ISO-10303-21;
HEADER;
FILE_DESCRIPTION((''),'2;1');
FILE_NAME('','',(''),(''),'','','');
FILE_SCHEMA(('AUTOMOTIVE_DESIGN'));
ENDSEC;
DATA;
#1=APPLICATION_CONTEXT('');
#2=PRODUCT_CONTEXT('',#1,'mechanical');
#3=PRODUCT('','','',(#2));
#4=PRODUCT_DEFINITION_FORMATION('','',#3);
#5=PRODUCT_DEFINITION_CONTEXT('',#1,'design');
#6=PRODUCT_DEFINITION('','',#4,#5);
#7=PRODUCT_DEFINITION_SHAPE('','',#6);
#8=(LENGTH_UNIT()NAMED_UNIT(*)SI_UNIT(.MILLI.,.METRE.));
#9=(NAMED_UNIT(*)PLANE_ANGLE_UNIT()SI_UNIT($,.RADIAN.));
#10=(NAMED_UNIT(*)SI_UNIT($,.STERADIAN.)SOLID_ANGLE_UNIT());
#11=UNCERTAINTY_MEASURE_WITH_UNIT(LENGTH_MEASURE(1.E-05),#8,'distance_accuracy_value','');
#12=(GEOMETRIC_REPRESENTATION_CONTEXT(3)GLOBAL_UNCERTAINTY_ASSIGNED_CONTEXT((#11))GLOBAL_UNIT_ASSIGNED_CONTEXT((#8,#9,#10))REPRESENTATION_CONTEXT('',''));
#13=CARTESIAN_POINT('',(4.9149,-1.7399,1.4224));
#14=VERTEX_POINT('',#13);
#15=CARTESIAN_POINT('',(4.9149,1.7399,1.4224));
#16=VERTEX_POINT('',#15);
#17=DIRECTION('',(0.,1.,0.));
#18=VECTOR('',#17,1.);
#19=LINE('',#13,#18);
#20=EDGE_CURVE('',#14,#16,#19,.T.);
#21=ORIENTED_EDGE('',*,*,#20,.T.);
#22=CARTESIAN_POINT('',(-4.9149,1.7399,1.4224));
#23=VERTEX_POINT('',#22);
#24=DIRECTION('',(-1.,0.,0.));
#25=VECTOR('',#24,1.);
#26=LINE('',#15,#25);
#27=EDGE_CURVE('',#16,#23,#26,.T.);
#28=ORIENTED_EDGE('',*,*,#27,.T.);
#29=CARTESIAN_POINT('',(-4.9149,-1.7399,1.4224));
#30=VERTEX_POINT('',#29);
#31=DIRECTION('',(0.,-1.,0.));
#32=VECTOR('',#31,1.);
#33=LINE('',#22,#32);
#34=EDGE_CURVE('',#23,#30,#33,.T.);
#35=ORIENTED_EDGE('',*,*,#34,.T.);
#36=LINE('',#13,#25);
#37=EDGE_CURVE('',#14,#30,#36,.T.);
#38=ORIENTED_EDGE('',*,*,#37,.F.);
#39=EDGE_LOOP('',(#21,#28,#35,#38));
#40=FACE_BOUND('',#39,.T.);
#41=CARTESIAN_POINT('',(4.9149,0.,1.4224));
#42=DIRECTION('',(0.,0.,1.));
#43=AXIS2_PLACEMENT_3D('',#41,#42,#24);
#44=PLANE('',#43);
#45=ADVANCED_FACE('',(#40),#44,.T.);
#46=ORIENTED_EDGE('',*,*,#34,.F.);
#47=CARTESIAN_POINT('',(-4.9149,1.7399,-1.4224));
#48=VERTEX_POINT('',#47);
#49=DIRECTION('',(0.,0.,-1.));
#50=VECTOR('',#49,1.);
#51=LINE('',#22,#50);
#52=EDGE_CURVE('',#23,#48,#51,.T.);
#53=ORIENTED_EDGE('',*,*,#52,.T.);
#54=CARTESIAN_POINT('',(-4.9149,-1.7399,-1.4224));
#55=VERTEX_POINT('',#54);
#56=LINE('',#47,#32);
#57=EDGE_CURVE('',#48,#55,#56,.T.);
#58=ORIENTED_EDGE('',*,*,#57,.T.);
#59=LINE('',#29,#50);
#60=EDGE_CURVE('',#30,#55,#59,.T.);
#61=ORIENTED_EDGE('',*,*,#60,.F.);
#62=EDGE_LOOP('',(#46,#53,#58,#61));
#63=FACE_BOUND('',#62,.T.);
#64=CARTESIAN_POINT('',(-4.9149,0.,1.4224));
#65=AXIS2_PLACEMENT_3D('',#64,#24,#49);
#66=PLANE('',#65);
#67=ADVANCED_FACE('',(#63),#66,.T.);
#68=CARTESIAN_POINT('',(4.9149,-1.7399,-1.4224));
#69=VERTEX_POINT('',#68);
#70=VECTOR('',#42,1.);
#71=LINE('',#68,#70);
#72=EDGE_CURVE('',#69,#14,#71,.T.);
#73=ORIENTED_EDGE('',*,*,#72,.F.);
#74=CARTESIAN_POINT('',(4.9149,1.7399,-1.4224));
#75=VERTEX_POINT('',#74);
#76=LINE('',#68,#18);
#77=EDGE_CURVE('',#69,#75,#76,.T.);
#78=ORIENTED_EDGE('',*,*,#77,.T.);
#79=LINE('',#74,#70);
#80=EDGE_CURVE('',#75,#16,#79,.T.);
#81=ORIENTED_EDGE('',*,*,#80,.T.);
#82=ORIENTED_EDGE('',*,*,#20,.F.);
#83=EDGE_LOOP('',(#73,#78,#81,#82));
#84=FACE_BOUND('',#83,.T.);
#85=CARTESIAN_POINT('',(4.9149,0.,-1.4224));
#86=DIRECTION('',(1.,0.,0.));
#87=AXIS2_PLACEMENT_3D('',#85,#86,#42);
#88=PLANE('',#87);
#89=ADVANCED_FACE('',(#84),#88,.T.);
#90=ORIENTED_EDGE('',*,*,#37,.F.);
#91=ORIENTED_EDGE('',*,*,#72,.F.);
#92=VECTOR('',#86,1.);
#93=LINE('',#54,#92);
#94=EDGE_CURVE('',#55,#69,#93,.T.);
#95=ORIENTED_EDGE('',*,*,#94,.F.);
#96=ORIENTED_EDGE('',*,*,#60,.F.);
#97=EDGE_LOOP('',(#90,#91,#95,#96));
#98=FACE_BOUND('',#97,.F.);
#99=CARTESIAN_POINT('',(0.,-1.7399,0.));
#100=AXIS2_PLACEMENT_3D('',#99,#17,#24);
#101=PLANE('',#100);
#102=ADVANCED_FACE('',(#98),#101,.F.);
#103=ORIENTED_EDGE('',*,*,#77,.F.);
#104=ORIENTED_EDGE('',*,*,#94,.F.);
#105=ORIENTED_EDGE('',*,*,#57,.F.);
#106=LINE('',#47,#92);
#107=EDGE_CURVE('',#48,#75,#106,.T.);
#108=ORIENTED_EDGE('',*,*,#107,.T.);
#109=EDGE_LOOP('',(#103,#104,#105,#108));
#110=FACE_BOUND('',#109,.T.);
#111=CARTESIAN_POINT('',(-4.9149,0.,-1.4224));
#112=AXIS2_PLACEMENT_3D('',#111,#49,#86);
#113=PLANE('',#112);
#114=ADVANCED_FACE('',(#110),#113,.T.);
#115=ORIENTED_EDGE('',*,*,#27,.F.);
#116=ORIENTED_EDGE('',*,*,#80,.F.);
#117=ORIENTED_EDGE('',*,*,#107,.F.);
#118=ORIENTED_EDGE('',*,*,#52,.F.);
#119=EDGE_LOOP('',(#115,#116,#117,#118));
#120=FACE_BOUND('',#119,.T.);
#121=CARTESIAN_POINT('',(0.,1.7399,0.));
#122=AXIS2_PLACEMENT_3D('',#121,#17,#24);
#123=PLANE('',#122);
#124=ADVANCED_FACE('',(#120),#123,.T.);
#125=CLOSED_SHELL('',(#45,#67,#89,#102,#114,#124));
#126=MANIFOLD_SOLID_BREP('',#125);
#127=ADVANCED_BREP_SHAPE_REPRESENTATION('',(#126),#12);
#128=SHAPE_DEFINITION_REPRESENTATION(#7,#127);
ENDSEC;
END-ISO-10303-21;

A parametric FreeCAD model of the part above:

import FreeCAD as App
import Part
import Sketcher

V = App.Vector
Q = App.Units.Quantity


def add_polygon(sketch, points):
    """Adds a closed chain of lines whose ends are joined by coincident constraints."""
    first, n = sketch.GeometryCount, len(points)
    for a, b in zip(points, points[1:] + points[:1]):
        sketch.addGeometry(Part.LineSegment(App.Vector(*a, 0), App.Vector(*b, 0)), False)
    for i in range(n):
        sketch.addConstraint(Sketcher.Constraint("Coincident", first + i, 2, first + (i + 1) % n, 1))

doc = App.newDocument("Part")
body = doc.addObject("PartDesign::Body", "Body")

sketch1 = body.newObject("Sketcher::SketchObject", "Sketch")
sketch1.AttachmentSupport = (doc.getObject("XZ_Plane"), [""])
sketch1.MapMode = "FlatFace"
add_polygon(sketch1, [(-4.9, 1.4), (4.9, 1.4), (4.9, -1.4), (-4.9, -1.4)])
sketch1.addConstraint(Sketcher.Constraint("Horizontal", 0))
sketch1.addConstraint(Sketcher.Constraint("Vertical", 1))
sketch1.addConstraint(Sketcher.Constraint("Horizontal", 2))
sketch1.addConstraint(Sketcher.Constraint("Vertical", 3))
sketch1.addConstraint(Sketcher.Constraint("Symmetric", 0, 2, 2, 2, -1, 1))
sketch1.addConstraint(Sketcher.Constraint("DistanceX", 0, 1, 0, 2, Q("0.387 in")))
sketch1.addConstraint(Sketcher.Constraint("DistanceY", 1, 2, 1, 1, Q("0.112 in")))
pad1 = body.newObject("PartDesign::Pad", "Pad")
pad1.Profile = sketch1
pad1.Length = Q("0.137 in")
pad1.Midplane = True

doc.recompute()
